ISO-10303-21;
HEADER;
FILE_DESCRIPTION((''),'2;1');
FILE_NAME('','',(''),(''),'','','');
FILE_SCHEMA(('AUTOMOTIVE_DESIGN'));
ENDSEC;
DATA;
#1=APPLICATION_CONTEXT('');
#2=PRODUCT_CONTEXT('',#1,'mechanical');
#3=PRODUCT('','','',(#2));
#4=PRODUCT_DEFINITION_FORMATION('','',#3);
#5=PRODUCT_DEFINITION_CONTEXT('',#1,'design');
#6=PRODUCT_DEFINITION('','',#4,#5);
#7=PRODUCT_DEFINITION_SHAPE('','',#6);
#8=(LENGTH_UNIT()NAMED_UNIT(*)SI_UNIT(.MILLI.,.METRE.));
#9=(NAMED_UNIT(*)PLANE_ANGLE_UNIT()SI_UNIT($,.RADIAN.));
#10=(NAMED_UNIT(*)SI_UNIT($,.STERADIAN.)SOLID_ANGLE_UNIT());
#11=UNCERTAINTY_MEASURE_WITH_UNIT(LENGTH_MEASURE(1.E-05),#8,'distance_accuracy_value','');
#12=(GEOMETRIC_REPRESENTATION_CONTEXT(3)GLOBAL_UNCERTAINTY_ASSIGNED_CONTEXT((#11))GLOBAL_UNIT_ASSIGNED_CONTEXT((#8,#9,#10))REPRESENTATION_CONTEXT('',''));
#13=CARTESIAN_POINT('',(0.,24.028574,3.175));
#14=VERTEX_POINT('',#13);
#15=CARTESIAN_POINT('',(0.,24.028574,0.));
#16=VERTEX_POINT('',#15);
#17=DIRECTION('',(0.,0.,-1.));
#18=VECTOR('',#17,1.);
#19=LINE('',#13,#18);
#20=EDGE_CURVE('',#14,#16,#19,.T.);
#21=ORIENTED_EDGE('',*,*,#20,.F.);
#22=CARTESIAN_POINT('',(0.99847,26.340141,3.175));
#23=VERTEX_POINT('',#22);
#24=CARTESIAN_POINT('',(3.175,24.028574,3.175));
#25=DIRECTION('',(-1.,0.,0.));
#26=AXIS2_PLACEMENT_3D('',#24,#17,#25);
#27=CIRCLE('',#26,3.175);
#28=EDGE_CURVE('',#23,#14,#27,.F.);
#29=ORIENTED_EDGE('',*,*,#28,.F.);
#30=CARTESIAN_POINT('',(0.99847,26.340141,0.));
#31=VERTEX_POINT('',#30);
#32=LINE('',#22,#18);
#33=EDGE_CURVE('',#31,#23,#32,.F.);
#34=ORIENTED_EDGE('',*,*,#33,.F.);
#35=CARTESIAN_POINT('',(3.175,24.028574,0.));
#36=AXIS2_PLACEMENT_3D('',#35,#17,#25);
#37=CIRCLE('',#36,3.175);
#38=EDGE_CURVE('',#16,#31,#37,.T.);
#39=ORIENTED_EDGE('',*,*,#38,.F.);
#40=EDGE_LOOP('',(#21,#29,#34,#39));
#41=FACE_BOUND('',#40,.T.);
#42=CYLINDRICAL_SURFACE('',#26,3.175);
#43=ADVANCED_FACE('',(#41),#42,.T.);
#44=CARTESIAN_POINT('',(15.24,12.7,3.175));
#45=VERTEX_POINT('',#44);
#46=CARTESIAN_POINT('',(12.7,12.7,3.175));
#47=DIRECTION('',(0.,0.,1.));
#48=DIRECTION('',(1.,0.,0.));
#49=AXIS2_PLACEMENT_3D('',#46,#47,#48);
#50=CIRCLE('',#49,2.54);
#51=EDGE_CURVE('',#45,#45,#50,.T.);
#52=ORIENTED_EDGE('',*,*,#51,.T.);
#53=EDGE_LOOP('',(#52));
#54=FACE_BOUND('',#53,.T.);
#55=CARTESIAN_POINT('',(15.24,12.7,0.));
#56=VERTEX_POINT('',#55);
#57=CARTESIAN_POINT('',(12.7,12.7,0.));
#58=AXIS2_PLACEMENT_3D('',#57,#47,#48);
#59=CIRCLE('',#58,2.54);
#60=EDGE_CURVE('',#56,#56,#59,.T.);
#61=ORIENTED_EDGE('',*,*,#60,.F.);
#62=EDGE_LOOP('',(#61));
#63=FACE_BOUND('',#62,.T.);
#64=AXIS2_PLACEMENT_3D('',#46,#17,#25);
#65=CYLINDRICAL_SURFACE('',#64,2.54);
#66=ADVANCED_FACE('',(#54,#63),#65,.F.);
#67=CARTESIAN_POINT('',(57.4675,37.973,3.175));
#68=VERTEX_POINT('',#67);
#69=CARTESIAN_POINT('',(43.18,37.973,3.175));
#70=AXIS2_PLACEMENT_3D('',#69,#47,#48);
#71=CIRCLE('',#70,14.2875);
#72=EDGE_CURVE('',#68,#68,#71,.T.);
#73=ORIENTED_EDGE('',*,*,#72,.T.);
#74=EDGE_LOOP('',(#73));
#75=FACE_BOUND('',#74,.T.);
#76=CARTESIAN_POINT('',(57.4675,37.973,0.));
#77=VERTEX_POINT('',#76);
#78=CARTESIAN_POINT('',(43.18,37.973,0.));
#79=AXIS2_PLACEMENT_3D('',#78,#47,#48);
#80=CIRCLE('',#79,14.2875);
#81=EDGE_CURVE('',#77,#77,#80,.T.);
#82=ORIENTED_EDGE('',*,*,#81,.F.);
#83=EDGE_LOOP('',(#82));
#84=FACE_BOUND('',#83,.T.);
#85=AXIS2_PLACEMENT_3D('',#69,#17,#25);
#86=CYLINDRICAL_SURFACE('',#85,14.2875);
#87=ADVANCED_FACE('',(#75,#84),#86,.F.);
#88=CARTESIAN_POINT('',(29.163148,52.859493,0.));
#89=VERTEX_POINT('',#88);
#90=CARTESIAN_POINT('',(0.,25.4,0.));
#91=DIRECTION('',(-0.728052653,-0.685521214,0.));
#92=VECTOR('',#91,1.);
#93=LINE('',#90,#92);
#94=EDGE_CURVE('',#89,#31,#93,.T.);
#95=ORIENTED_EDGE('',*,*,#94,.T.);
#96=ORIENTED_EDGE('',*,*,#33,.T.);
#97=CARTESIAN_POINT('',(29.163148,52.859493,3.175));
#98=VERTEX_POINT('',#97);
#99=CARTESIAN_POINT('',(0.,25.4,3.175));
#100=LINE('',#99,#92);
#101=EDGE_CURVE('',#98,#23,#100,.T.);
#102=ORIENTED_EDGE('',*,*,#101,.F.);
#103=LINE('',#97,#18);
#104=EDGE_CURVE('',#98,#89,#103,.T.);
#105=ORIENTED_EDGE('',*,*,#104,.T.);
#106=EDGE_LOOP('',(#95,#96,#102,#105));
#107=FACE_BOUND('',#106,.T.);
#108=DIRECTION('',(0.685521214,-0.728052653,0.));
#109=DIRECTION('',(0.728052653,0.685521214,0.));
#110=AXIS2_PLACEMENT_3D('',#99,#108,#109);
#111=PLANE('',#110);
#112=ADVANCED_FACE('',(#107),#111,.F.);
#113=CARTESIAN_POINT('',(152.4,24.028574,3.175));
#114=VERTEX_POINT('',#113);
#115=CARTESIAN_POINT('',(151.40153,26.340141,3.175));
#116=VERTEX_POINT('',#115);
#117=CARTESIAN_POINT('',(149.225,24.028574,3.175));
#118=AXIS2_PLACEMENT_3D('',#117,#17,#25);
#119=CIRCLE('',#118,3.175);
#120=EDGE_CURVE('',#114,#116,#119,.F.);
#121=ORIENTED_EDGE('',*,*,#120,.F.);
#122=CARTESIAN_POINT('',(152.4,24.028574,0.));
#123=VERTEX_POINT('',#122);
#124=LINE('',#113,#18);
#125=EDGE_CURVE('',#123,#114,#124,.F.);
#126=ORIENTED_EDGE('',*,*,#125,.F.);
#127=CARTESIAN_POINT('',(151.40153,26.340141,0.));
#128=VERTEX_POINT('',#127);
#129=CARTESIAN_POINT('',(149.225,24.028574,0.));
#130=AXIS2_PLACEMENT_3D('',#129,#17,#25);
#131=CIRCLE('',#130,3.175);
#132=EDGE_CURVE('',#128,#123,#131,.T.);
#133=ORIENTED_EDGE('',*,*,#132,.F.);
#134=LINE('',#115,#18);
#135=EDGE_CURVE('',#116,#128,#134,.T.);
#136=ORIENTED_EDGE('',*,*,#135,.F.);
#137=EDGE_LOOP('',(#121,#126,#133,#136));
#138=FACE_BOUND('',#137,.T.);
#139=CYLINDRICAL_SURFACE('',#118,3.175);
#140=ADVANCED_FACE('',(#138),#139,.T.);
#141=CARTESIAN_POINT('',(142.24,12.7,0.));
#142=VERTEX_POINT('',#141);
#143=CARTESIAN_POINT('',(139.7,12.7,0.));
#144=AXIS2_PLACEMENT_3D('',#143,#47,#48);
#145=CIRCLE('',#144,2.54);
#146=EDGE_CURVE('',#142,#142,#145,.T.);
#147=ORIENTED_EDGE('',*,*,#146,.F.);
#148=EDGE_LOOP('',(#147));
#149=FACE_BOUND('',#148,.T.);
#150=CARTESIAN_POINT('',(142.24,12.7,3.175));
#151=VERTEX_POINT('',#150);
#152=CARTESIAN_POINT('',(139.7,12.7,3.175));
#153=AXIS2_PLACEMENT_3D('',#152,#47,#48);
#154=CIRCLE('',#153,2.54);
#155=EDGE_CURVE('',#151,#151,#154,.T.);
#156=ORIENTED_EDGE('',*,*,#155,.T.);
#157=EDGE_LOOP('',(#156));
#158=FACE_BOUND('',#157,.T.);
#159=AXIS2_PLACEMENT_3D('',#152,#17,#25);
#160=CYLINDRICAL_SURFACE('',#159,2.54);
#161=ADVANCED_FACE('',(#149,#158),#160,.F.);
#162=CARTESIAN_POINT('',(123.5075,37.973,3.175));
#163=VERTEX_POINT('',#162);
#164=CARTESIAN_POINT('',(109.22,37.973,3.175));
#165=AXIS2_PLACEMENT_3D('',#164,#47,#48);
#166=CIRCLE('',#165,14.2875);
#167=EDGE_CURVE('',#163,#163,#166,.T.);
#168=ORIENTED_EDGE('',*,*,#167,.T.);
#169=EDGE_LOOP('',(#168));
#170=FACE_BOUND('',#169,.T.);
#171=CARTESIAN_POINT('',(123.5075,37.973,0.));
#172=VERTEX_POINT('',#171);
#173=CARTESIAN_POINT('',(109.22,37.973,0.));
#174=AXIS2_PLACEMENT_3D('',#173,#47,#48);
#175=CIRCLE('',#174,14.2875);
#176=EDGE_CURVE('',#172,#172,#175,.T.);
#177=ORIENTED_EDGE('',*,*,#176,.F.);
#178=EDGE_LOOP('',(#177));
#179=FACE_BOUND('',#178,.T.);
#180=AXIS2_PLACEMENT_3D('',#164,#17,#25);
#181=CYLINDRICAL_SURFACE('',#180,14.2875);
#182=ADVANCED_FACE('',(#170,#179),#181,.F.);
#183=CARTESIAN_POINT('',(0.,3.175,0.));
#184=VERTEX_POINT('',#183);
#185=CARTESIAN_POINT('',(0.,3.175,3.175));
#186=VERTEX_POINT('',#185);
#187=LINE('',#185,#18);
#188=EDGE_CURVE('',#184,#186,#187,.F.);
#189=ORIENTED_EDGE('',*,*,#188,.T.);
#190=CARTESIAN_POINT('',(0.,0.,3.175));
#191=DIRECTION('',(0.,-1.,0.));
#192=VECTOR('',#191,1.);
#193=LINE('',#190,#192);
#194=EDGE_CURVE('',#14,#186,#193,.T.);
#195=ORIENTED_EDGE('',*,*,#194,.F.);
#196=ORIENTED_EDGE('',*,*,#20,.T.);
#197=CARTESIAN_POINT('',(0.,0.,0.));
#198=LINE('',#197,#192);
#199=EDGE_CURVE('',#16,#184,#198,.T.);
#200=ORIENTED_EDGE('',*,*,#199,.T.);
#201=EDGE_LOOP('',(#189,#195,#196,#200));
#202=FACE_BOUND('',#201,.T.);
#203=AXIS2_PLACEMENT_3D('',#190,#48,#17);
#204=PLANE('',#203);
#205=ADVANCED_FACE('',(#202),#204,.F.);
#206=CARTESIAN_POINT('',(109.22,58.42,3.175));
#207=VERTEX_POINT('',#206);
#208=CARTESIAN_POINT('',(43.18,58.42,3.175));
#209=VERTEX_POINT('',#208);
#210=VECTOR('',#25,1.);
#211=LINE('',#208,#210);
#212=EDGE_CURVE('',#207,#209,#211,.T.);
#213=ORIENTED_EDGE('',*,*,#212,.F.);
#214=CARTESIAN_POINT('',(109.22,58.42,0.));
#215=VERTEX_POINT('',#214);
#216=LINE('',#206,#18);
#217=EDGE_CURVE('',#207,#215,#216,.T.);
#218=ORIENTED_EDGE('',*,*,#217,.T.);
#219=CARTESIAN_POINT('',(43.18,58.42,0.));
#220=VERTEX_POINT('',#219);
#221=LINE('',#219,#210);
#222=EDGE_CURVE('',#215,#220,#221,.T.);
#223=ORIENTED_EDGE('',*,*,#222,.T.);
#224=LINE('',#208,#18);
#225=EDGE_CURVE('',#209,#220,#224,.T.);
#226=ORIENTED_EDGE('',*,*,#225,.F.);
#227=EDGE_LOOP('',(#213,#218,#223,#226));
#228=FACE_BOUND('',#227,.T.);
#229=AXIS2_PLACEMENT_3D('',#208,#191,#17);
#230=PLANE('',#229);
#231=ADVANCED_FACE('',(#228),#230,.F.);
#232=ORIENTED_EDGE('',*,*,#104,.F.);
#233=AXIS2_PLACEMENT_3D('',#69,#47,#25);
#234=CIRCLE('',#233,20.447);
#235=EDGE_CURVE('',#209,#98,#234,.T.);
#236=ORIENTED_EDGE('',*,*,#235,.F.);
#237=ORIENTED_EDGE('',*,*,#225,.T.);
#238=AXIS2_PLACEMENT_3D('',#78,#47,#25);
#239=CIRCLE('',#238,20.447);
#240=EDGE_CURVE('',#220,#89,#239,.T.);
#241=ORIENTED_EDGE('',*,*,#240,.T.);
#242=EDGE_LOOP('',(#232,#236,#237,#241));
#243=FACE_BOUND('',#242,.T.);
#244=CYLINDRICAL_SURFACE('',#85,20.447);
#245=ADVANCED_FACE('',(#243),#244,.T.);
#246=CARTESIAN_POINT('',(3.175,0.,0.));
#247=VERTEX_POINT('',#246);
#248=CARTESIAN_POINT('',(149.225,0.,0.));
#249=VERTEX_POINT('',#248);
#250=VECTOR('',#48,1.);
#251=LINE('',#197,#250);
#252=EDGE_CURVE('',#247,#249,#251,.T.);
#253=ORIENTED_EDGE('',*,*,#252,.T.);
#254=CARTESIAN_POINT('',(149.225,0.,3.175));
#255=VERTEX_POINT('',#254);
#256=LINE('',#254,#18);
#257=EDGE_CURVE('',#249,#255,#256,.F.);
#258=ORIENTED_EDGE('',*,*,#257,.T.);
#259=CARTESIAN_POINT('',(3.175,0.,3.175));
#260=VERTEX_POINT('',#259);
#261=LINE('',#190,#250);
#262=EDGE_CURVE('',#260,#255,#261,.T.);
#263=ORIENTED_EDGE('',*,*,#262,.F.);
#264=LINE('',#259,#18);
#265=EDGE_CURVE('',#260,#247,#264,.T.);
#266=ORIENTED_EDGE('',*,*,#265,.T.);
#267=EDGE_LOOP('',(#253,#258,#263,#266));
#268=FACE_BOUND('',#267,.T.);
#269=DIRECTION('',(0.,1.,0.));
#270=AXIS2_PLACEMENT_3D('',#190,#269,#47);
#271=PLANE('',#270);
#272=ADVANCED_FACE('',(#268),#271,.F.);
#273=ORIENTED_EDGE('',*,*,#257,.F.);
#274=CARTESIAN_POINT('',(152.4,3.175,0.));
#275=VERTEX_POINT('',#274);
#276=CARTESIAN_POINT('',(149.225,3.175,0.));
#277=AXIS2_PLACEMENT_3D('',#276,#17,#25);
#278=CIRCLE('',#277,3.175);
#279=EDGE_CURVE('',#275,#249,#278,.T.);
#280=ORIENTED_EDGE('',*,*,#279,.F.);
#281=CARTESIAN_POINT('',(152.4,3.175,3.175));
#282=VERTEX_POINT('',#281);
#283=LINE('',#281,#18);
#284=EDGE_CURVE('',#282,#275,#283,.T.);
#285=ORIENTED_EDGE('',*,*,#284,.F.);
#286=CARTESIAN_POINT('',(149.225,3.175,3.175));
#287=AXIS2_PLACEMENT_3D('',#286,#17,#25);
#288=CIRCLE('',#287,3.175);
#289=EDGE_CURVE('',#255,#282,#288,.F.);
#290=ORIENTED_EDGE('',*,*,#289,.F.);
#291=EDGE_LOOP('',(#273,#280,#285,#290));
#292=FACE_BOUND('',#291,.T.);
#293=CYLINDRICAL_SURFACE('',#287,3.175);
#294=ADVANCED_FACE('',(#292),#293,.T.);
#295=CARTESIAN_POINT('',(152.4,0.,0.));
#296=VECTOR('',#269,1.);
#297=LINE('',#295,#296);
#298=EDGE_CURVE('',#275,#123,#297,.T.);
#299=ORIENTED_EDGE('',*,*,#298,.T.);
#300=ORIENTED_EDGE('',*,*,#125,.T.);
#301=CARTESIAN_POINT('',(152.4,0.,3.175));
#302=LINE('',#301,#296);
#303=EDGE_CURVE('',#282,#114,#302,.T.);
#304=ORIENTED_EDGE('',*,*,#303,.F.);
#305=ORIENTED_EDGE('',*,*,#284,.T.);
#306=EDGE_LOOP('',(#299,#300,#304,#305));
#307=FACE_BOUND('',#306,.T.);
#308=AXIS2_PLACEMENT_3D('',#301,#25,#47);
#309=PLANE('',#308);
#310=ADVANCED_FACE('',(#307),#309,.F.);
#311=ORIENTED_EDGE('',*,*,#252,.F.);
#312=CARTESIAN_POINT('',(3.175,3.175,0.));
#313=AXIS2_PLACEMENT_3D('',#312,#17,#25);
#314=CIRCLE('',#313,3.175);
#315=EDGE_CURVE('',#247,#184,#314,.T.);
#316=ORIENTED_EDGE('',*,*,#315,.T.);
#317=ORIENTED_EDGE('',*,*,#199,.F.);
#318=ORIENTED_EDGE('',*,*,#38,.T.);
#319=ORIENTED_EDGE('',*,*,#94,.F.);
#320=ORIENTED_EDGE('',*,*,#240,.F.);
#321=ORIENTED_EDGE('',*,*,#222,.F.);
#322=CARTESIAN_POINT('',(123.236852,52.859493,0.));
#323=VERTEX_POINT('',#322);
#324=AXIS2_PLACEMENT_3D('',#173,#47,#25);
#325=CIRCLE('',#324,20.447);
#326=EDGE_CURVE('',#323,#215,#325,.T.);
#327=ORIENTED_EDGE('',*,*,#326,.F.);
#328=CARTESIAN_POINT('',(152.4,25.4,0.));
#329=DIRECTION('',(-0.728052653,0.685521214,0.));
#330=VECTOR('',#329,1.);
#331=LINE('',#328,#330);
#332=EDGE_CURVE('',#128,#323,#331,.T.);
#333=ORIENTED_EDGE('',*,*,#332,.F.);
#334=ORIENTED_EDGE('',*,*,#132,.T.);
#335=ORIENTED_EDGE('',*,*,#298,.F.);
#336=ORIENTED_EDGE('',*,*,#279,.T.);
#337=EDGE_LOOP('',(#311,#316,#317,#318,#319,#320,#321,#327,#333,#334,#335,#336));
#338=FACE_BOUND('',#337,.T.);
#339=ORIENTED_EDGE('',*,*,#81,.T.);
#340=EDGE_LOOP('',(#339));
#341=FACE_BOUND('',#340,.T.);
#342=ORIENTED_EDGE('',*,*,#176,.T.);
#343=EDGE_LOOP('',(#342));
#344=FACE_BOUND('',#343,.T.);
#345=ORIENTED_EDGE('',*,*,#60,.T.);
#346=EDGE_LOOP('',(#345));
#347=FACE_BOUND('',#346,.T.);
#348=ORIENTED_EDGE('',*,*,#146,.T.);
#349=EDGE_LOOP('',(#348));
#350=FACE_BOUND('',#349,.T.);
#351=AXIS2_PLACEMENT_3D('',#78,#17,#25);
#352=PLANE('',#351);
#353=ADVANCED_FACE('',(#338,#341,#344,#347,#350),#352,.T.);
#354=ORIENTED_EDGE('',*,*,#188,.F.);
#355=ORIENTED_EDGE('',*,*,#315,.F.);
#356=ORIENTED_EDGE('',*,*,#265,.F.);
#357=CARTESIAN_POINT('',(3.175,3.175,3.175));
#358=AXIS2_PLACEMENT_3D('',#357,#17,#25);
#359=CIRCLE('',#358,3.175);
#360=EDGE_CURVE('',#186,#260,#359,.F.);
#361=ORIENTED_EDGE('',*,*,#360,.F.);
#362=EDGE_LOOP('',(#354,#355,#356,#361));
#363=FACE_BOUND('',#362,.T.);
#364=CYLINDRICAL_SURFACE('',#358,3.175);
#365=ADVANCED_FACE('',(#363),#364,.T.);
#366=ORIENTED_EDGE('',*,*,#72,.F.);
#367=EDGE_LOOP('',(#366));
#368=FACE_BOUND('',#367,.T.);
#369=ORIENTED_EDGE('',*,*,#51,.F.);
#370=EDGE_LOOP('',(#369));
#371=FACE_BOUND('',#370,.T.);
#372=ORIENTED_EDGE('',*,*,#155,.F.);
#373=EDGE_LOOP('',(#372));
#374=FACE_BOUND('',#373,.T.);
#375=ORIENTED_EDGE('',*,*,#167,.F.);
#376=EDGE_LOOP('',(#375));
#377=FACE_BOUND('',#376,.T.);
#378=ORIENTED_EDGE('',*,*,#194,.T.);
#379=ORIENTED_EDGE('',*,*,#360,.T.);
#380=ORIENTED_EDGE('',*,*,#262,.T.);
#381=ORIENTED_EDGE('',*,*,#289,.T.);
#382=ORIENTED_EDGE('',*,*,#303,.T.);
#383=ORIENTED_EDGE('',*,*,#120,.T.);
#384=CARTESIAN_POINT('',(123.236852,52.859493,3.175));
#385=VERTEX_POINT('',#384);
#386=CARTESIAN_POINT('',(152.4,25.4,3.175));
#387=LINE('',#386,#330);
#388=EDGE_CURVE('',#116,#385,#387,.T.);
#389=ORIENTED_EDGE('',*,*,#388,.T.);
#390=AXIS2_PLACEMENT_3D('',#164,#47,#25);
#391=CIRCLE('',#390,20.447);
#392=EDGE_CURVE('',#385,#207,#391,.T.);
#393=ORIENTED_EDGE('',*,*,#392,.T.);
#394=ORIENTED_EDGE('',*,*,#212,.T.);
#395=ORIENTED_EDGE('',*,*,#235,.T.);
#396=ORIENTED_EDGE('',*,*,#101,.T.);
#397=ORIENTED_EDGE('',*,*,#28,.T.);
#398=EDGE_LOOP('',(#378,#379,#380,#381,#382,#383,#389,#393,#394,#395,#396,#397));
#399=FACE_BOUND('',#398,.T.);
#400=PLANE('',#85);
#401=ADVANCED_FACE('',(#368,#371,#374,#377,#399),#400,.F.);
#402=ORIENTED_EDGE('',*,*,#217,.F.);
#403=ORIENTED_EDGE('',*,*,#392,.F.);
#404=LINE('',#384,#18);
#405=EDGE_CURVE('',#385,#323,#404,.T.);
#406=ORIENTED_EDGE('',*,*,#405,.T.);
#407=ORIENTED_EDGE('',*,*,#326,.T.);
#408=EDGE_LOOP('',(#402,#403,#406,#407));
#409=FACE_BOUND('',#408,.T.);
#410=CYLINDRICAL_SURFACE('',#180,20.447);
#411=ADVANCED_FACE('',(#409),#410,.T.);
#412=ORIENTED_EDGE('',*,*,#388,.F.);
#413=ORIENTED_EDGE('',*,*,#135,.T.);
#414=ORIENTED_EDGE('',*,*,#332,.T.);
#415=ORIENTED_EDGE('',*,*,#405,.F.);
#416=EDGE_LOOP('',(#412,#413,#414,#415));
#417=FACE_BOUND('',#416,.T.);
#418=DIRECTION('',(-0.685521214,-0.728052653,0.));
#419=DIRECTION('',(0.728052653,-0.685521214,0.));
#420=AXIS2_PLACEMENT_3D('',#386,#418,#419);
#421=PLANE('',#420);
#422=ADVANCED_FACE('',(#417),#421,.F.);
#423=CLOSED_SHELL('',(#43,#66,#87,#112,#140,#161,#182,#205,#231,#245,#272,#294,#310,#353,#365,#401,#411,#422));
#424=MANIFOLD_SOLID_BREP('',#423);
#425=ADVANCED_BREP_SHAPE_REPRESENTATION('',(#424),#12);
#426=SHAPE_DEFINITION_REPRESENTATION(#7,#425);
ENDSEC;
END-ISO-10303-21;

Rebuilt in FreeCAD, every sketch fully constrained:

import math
import FreeCAD as App
import Part
import Sketcher
Q = App.Units.Quantity


def edges_at(feature, points):
    """Names of the edges that pass closest to the given points."""
    edges = feature.Shape.Edges
    near = lambda p: min(range(len(edges)), key=lambda i: edges[i].distToShape(Part.Vertex(*p))[0])
    return sorted({f"Edge{near(p) + 1}" for p in points})

doc = App.newDocument("Part")
body = doc.addObject("PartDesign::Body", "Body")

sketch1 = body.newObject("Sketcher::SketchObject", "Sketch")
sketch1.AttachmentSupport = (doc.getObject("XY_Plane"), [""])
sketch1.MapMode = "FlatFace"
sketch1.addGeometry([
    Part.LineSegment(App.Vector(0, 0, 0), App.Vector(152.4, 0, 0)),
    Part.LineSegment(App.Vector(152.4, 0, 0), App.Vector(152.4, 25.4, 0)),
    Part.LineSegment(App.Vector(152.4, 25.4, 0), App.Vector(123.2, 52.9, 0)),
    Part.ArcOfCircle(Part.Circle(App.Vector(109.2, 38, 0), App.Vector(0, 0, 1), 20.4), math.radians(47), math.radians(90)),
    Part.LineSegment(App.Vector(109.2, 58.4, 0), App.Vector(43.2, 58.4, 0)),
    Part.ArcOfCircle(Part.Circle(App.Vector(43.2, 38, 0), App.Vector(0, 0, 1), 20.4), math.radians(90), math.radians(133)),
    Part.LineSegment(App.Vector(29.2, 52.9, 0), App.Vector(0, 25.4, 0)),
    Part.LineSegment(App.Vector(0, 25.4, 0), App.Vector(0, 0, 0)),
    Part.Circle(App.Vector(12.7, 12.7, 0), App.Vector(0, 0, 1), 2.5),
    Part.Circle(App.Vector(139.7, 12.7, 0), App.Vector(0, 0, 1), 2.5),
    Part.Circle(App.Vector(43.2, 38, 0), App.Vector(0, 0, 1), 14.3),
    Part.Circle(App.Vector(109.2, 38, 0), App.Vector(0, 0, 1), 14.3),
], False)
sketch1.addConstraint([
    Sketcher.Constraint("Coincident", 0, 2, 1, 1),
    Sketcher.Constraint("Coincident", 1, 2, 2, 1),
    Sketcher.Constraint("Tangent", 2, 2, 3, 1),
    Sketcher.Constraint("Tangent", 3, 2, 4, 1),
    Sketcher.Constraint("Tangent", 4, 2, 5, 1),
    Sketcher.Constraint("Tangent", 5, 2, 6, 1),
    Sketcher.Constraint("Coincident", 6, 2, 7, 1),
    Sketcher.Constraint("Coincident", 7, 2, 0, 1),
    Sketcher.Constraint("Horizontal", 0),
    Sketcher.Constraint("Vertical", 1),
    Sketcher.Constraint("Horizontal", 4),
    Sketcher.Constraint("Vertical", 7),
    Sketcher.Constraint("Coincident", 7, 2, -1, 1),
    Sketcher.Constraint("Coincident", 10, 3, 5, 3),
    Sketcher.Constraint("Coincident", 11, 3, 3, 3),
    Sketcher.Constraint("Equal", 3, 5),
    Sketcher.Constraint("Equal", 8, 9),
    Sketcher.Constraint("Equal", 10, 11),
    Sketcher.Constraint("Horizontal", 8, 3, 9, 3),
    Sketcher.Constraint("Horizontal", 2, 2, 5, 2),
    Sketcher.Constraint("Horizontal", 1, 2, 6, 2),
    Sketcher.Constraint("Diameter", 8, Q("0.2 in")),
    Sketcher.Constraint("DistanceX", 0, 1, 0, 2, Q("6 in")),
    Sketcher.Constraint("DistanceY", 1, 1, 1, 2, Q("1 in")),
    Sketcher.Constraint("Diameter", 10, Q("1.125 in")),
    Sketcher.Constraint("DistanceX", 4, 2, 4, 1, Q("2.6 in")),
    Sketcher.Constraint("Radius", 3, Q("0.805 in")),
    Sketcher.Constraint("DistanceX", 8, 3, 9, 3, Q("5 in")),
    Sketcher.Constraint("DistanceX", -1, 1, 8, 3, Q("0.5 in")),
    Sketcher.Constraint("DistanceY", -1, 1, 8, 3, Q("0.5 in")),
    Sketcher.Constraint("DistanceY", -1, 1, 3, 2, Q("2.3 in")),
])
pad1 = body.newObject("PartDesign::Pad", "Pad")
pad1.Profile = sketch1
pad1.Length = Q("0.125 in")
doc.recompute()

fillet = body.newObject("PartDesign::Fillet", "Fillet")
fillet.Base = (pad1, edges_at(pad1, [
    (0, 25.4, 1.587),
    (152.4, 25.4, 1.587),
    (152.4, 0, 1.587),
    (0, 0, 1.587),
]))
fillet.Radius = Q("0.125 in")

doc.recompute()
